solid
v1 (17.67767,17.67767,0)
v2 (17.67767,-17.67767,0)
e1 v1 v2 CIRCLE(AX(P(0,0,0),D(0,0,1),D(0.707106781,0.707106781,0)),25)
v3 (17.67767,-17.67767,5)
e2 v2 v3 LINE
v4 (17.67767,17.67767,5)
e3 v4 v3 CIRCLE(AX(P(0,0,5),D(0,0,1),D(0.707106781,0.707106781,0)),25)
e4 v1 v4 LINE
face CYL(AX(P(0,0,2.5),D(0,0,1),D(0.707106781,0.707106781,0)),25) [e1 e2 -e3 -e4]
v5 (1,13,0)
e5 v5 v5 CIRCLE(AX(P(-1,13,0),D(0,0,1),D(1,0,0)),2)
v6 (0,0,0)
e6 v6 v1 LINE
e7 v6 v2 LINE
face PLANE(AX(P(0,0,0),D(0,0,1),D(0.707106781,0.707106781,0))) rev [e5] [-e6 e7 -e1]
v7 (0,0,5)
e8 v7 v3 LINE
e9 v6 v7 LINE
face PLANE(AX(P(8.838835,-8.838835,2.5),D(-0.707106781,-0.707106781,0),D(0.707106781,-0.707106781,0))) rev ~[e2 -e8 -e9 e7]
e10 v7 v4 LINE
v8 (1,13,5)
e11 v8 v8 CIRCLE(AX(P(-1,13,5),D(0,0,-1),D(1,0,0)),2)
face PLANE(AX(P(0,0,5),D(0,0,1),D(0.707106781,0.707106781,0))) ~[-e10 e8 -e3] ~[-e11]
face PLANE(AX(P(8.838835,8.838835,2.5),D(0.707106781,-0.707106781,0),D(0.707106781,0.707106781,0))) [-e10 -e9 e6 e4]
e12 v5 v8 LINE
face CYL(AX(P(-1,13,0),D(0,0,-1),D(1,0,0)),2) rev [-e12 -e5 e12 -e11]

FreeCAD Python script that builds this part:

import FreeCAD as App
import Part
import Sketcher

V = App.Vector


def add_polygon(sketch, points):
    """Adds a closed chain of lines whose ends are joined by coincident constraints."""
    first, n = sketch.GeometryCount, len(points)
    for a, b in zip(points, points[1:] + points[:1]):
        sketch.addGeometry(Part.LineSegment(App.Vector(*a, 0), App.Vector(*b, 0)), False)
    for i in range(n):
        sketch.addConstraint(Sketcher.Constraint("Coincident", first + i, 2, first + (i + 1) % n, 1))

doc = App.newDocument("Part")
body = doc.addObject("PartDesign::Body", "Body")

# Sketch on XY plane
sketch1 = body.newObject("Sketcher::SketchObject", "Sketch")
sketch1.AttachmentSupport = (doc.getObject("XY_Plane"), [""])
sketch1.MapMode = "FlatFace"
sketch1.addGeometry(Part.Circle(V(-1, 13, 0), V(0, 0, 1), 2), False)
sketch1.addConstraint([
    Sketcher.Constraint("Diameter", 0, 4.0),
    Sketcher.Constraint("DistanceX", 0, 3, -1, 1, 1.0),
    Sketcher.Constraint("DistanceY", -1, 1, 0, 3, 13.0),
])
pad1 = body.newObject("PartDesign::Pad", "Pad")
pad1.Profile = sketch1
pad1.Length = 10
body2 = doc.addObject("PartDesign::Body", "Body001")

# Sketch on XZ plane
sketch2 = body2.newObject("Sketcher::SketchObject", "Sketch001")
sketch2.AttachmentSupport = (doc.getObject("XZ_Plane001"), [""])
sketch2.MapMode = "FlatFace"
add_polygon(sketch2, [(0, 5), (0, 0), (25, 0), (25, 5)])  # lines 0-3
sketch2.addConstraint([
    Sketcher.Constraint("Vertical", 0),
    Sketcher.Constraint("Horizontal", 1),
    Sketcher.Constraint("Vertical", 2),
    Sketcher.Constraint("Horizontal", 3),
    Sketcher.Constraint("Coincident", 0, 2, -1, 1),
    Sketcher.Constraint("DistanceX", 1, 1, 1, 2, 25.0),
    Sketcher.Constraint("DistanceY", 0, 2, 0, 1, 5.0),
])
revolution = body2.newObject("PartDesign::Revolution", "Revolution")
revolution.Profile = sketch2
revolution.ReferenceAxis = (sketch2, ["V_Axis"])
revolution.Angle = 270
body3 = doc.addObject("PartDesign::Body", "Body002")
doc.recompute()

body2.Placement = App.Placement(V(0, 0, 0), App.Rotation(V(0, 0, 1), 45))
boolean = body3.newObject("PartDesign::Boolean", "Boolean")
boolean.Type = "Fuse"
boolean.addObjects([body2])
doc.recompute()

boolean2 = body3.newObject("PartDesign::Boolean", "Boolean001")
boolean2.Type = "Cut"
boolean2.addObjects([body])

doc.recompute()
